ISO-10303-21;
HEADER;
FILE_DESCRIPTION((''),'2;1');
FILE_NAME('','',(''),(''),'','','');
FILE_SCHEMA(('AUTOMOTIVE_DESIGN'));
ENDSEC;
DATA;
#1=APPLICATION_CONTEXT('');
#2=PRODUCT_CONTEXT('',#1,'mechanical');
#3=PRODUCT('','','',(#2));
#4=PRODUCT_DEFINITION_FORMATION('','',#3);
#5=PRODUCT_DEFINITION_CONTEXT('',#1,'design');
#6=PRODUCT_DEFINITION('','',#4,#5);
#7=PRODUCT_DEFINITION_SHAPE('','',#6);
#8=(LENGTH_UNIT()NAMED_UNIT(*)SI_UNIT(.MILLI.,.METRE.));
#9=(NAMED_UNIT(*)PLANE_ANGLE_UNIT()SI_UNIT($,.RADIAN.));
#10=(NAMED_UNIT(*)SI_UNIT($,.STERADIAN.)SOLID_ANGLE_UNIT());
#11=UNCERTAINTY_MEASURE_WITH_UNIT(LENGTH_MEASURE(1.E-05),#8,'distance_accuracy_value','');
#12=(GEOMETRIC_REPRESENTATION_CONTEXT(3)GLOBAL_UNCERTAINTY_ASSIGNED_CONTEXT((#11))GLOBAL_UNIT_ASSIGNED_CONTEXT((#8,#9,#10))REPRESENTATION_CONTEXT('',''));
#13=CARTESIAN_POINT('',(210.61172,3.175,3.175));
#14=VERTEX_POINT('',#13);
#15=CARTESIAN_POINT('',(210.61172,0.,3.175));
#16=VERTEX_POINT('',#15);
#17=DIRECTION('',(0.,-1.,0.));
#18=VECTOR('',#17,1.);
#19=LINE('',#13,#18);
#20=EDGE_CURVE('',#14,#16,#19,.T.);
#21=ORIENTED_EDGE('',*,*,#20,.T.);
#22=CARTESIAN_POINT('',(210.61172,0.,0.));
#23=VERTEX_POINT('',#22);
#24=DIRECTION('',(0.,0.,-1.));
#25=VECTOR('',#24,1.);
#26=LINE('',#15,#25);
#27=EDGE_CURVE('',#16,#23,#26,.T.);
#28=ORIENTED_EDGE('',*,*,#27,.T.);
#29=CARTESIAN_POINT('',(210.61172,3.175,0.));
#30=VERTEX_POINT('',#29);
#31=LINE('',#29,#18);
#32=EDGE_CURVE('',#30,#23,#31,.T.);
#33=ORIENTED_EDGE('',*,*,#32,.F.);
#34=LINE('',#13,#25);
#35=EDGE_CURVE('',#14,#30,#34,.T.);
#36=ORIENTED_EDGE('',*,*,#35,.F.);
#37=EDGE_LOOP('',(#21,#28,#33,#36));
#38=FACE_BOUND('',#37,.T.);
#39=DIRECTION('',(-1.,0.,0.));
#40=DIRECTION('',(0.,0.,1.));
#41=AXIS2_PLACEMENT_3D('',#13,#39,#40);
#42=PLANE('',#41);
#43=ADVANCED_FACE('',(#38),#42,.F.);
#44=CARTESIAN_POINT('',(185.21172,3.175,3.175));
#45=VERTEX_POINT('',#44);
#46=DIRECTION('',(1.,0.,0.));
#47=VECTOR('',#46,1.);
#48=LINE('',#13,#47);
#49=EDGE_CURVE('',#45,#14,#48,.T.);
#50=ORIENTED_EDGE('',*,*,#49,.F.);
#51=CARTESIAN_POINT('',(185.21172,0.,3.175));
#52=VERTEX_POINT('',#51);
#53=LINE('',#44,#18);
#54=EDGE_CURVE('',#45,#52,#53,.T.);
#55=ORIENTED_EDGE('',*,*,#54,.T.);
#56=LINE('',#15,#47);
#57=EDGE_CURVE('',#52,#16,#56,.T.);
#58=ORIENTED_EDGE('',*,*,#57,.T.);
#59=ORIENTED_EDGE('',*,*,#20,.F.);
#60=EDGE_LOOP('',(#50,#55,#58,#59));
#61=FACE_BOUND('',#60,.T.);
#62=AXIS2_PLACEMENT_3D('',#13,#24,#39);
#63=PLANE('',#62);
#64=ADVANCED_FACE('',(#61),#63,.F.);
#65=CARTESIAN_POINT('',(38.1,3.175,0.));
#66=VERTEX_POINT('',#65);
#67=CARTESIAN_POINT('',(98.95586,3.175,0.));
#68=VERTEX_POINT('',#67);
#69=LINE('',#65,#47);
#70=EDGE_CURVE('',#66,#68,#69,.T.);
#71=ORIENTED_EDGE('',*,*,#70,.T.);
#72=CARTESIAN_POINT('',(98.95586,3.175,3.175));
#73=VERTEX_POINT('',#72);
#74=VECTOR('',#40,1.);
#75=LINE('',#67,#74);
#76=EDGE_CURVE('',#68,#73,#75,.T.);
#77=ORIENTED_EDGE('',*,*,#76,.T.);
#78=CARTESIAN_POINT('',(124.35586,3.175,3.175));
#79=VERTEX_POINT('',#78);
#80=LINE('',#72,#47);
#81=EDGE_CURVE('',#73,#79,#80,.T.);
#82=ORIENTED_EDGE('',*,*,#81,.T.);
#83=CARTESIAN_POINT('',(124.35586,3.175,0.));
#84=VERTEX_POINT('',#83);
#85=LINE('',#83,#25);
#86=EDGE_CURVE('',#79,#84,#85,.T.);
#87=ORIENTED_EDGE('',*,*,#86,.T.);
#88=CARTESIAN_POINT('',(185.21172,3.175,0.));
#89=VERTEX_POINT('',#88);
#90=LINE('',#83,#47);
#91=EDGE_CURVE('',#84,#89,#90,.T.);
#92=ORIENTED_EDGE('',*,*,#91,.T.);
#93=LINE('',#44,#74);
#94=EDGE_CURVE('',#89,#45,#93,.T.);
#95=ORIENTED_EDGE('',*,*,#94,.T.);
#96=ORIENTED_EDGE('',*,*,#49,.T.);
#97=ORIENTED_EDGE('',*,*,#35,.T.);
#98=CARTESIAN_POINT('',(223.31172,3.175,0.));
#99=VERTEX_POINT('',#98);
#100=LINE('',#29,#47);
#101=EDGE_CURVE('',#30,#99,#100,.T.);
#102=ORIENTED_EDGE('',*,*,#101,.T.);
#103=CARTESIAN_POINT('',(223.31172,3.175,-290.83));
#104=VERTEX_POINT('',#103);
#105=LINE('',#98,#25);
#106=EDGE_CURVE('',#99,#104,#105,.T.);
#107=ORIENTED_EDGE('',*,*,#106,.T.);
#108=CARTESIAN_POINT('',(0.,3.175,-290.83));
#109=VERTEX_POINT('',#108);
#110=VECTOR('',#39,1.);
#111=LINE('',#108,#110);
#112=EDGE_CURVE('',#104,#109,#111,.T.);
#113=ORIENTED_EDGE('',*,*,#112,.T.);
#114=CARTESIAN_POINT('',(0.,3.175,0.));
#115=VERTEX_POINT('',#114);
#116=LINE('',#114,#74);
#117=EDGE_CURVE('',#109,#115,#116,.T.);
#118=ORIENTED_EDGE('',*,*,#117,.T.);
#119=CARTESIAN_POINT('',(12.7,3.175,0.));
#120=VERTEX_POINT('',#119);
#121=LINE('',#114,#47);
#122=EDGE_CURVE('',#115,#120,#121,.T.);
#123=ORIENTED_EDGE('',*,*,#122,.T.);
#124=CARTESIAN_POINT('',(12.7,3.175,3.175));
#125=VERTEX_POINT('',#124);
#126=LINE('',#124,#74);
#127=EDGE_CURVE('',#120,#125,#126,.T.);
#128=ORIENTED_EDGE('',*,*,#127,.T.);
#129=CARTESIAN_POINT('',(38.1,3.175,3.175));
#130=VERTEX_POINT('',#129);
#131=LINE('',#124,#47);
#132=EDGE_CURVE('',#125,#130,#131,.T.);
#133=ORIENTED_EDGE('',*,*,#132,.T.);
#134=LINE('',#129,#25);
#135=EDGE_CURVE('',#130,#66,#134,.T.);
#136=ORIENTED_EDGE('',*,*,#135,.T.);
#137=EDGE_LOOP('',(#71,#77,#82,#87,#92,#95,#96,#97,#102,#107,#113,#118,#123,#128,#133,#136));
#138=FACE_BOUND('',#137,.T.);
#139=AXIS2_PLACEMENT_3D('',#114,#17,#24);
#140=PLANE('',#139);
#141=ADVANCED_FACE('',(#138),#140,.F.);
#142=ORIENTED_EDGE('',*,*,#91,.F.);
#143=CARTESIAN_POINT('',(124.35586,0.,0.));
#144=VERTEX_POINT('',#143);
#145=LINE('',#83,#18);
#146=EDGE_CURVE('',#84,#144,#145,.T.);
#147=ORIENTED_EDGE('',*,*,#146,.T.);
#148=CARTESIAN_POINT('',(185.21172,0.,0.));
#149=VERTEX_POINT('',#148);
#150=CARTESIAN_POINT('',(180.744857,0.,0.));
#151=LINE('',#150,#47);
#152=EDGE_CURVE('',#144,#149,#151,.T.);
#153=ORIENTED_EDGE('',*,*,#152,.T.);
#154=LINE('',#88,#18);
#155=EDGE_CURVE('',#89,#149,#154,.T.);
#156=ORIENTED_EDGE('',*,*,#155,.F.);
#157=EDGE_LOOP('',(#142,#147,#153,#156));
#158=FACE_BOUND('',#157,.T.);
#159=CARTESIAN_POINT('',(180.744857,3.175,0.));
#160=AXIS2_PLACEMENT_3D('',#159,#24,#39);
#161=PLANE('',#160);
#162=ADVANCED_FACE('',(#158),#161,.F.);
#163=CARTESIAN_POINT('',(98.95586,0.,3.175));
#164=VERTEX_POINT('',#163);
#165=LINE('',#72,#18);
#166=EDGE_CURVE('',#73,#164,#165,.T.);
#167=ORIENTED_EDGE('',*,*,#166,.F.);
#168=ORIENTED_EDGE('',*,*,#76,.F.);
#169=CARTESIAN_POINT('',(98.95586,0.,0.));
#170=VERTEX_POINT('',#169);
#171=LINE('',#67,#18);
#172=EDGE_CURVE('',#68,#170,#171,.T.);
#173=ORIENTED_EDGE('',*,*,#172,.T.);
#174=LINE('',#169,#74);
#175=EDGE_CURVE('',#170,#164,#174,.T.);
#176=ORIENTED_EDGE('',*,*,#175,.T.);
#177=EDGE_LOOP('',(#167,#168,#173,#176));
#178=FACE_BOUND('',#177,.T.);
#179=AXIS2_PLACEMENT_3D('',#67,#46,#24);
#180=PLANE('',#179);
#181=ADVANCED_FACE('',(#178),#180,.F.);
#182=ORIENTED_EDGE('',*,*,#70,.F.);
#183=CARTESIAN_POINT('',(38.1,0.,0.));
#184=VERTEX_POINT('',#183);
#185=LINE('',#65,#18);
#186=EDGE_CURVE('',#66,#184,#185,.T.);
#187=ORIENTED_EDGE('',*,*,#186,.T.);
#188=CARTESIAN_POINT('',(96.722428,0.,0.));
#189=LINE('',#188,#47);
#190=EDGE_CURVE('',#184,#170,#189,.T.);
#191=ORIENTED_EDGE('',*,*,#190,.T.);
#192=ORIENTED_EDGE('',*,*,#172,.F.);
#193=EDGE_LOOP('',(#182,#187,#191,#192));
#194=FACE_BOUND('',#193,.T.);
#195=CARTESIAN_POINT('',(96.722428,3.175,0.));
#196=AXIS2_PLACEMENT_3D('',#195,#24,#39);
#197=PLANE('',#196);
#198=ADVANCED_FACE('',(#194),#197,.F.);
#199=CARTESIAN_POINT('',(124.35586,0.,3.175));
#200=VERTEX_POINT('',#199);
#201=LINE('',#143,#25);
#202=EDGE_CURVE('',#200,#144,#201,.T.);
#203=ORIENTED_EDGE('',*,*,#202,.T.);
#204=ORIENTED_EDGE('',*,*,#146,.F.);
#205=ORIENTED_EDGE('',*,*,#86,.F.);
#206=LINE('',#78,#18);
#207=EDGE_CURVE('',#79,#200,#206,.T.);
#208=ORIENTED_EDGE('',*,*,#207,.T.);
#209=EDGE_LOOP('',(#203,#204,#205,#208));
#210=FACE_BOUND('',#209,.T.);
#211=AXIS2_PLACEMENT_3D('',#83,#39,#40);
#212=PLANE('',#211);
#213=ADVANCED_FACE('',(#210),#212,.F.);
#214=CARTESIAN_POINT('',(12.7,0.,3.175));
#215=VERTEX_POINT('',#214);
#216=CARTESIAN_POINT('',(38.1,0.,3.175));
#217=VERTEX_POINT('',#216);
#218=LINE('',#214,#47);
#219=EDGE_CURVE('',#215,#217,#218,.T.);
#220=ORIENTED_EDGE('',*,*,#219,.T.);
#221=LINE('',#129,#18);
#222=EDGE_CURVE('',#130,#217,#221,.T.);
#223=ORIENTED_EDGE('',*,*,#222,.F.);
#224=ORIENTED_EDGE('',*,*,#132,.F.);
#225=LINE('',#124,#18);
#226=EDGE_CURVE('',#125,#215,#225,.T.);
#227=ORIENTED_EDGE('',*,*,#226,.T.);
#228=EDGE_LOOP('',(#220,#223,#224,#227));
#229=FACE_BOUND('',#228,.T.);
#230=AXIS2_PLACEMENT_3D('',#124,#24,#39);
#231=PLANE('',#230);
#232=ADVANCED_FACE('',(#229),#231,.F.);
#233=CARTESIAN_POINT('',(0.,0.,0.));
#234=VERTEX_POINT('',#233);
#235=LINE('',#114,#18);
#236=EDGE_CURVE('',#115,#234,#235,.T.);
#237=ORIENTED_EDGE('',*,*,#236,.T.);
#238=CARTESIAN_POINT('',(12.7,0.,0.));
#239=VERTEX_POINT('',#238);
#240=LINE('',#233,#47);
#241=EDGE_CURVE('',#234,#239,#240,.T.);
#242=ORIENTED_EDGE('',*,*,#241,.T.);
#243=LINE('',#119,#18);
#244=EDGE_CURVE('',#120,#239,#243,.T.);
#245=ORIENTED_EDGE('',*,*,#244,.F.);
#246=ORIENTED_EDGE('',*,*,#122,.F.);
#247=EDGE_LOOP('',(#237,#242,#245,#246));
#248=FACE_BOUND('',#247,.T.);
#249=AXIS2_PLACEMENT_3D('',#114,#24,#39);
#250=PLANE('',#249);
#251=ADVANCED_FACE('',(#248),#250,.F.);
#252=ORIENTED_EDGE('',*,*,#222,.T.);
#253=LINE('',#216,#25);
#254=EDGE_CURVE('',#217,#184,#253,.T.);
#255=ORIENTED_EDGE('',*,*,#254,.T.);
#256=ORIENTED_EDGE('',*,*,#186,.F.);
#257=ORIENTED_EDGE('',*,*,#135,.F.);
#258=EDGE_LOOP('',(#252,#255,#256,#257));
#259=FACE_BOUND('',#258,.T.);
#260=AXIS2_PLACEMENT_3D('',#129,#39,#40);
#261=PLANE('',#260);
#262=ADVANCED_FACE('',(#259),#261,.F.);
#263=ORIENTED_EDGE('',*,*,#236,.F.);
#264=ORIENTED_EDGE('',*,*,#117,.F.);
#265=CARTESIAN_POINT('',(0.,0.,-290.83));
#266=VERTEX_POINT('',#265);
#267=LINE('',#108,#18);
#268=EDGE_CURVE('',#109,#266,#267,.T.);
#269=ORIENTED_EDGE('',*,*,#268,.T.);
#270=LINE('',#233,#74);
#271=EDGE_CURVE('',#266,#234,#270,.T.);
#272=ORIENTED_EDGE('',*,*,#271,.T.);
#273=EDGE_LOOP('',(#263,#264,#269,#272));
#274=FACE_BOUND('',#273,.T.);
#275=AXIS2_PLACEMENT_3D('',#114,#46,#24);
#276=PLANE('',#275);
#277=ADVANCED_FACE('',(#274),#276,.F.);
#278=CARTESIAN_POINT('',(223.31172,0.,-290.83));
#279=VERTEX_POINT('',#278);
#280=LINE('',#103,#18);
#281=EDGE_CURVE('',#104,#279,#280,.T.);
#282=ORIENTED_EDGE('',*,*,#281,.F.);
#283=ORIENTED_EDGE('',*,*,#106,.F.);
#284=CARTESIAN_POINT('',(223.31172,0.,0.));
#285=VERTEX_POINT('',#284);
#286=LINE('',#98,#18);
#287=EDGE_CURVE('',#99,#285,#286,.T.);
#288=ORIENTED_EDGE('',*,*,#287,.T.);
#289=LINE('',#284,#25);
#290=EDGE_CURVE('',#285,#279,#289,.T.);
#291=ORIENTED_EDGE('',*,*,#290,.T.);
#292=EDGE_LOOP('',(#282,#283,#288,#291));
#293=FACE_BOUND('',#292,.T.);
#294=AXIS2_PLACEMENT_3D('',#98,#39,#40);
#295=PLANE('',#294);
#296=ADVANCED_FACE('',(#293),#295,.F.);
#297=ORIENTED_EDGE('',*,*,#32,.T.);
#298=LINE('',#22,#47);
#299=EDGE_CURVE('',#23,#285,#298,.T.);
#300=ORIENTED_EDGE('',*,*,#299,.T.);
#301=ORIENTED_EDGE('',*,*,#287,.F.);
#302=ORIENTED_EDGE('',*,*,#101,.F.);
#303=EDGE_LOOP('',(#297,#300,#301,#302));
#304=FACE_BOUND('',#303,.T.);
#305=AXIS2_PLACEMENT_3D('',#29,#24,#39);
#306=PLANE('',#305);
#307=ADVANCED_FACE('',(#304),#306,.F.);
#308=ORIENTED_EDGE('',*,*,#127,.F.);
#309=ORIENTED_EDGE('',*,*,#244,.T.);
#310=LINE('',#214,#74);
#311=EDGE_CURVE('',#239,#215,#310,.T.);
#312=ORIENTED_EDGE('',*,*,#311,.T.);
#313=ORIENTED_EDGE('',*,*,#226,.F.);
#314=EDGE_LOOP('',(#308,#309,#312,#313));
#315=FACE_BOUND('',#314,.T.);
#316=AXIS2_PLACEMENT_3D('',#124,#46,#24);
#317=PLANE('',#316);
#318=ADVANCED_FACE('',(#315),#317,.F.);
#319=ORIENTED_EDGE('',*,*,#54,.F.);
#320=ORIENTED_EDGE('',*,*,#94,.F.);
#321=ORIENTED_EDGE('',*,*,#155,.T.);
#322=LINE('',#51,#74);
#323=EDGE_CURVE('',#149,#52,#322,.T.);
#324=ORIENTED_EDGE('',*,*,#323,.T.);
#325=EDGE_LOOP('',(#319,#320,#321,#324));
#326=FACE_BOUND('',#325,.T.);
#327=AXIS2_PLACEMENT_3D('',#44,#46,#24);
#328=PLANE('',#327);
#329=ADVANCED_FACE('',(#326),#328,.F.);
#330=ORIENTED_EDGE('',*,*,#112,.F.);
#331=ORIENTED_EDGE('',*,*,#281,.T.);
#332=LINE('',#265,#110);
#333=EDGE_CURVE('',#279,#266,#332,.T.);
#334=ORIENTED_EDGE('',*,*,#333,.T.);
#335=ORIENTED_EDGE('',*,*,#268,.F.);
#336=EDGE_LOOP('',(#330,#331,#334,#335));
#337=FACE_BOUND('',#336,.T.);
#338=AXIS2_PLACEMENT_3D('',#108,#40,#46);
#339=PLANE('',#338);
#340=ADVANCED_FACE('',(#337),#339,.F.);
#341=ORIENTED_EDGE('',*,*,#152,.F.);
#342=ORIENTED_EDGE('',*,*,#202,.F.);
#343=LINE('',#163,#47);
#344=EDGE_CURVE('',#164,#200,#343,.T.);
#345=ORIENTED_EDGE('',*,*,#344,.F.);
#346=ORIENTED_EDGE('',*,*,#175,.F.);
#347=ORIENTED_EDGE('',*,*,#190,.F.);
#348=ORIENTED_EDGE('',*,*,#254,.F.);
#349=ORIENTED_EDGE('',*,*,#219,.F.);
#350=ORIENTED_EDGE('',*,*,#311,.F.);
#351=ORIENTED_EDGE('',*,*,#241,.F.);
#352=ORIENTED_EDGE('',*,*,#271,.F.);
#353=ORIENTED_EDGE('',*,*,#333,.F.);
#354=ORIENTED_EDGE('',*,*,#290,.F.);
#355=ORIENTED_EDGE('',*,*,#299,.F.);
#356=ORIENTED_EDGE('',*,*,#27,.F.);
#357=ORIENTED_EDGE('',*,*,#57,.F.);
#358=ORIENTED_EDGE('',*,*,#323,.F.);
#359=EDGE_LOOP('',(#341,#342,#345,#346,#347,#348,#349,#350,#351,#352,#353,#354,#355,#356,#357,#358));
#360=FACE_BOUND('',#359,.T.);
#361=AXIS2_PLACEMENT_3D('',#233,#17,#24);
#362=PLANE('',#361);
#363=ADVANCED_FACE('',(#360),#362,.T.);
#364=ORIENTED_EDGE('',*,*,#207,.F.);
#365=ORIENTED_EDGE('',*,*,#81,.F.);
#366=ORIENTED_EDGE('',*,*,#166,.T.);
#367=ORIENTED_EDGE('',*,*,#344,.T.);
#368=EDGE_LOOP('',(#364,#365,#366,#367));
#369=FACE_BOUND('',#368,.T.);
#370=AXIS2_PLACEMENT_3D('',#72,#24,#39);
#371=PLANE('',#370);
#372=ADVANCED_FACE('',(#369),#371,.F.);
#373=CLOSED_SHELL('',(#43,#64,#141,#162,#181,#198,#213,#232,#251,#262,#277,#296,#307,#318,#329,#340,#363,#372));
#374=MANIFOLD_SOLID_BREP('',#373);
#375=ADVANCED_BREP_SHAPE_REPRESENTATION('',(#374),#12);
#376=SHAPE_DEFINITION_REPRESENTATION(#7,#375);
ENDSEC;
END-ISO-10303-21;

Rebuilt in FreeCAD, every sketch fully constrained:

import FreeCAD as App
import Part
import Sketcher

V = App.Vector
Q = App.Units.Quantity


def add_polygon(sketch, points):
    """Adds a closed chain of lines whose ends are joined by coincident constraints."""
    first, n = sketch.GeometryCount, len(points)
    for a, b in zip(points, points[1:] + points[:1]):
        sketch.addGeometry(Part.LineSegment(App.Vector(*a, 0), App.Vector(*b, 0)), False)
    for i in range(n):
        sketch.addConstraint(Sketcher.Constraint("Coincident", first + i, 2, first + (i + 1) % n, 1))

doc = App.newDocument("Part")
body = doc.addObject("PartDesign::Body", "Body")

# Sketch on XZ plane
sketch1 = body.newObject("Sketcher::SketchObject", "Sketch")
sketch1.AttachmentSupport = (doc.getObject("XZ_Plane"), [""])
sketch1.MapMode = "FlatFace"
add_polygon(sketch1, [(0, 0), (12.7, 0), (12.7, 3.2), (38.1, 3.2), (38.1, 0), (99, 0), (99, 3.2), (124.4, 3.2), (124.4, 0), (185.2, 0), (185.2, 3.2), (210.6, 3.2), (210.6, 0), (223.3, 0), (223.3, -290.8), (0, -290.8)])  # lines 0-15
sketch1.addConstraint([
    Sketcher.Constraint("Horizontal", 0),
    Sketcher.Constraint("Vertical", 1),
    Sketcher.Constraint("Horizontal", 2),
    Sketcher.Constraint("Vertical", 3),
    Sketcher.Constraint("Horizontal", 4),
    Sketcher.Constraint("Vertical", 5),
    Sketcher.Constraint("Horizontal", 6),
    Sketcher.Constraint("Vertical", 7),
    Sketcher.Constraint("Horizontal", 8),
    Sketcher.Constraint("Vertical", 9),
    Sketcher.Constraint("Horizontal", 10),
    Sketcher.Constraint("Vertical", 11),
    Sketcher.Constraint("Horizontal", 12),
    Sketcher.Constraint("Vertical", 13),
    Sketcher.Constraint("Horizontal", 14),
    Sketcher.Constraint("Vertical", 15),
    Sketcher.Constraint("Coincident", 15, 2, -1, 1),
    Sketcher.Constraint("PointOnObject", 3, 2, -1),
    Sketcher.Constraint("PointOnObject", 7, 2, -1),
    Sketcher.Constraint("PointOnObject", 11, 2, -1),
    Sketcher.Constraint("Horizontal", 2, 2, 5, 2),
    Sketcher.Constraint("Horizontal", 6, 2, 9, 2),
    Sketcher.Constraint("Equal", 2, 6),
    Sketcher.Constraint("Equal", 4, 8),
    Sketcher.Constraint("Equal", 6, 10),
    Sketcher.Constraint("Equal", 0, 12),
    Sketcher.Constraint("DistanceX", 2, 1, 2, 2, Q("1 in")),
    Sketcher.Constraint("DistanceX", 0, 1, 0, 2, Q("0.5 in")),
    Sketcher.Constraint("DistanceY", 13, 2, 13, 1, Q("11.45 in")),
    Sketcher.Constraint("DistanceY", 1, 1, 1, 2, Q("0.125 in")),
    Sketcher.Constraint("DistanceX", 4, 1, 4, 2, Q("2.3959 in")),
])
pad1 = body.newObject("PartDesign::Pad", "Pad")
pad1.Profile = sketch1
pad1.Length = Q("0.125 in")
pad1.Reversed = True

doc.recompute()
